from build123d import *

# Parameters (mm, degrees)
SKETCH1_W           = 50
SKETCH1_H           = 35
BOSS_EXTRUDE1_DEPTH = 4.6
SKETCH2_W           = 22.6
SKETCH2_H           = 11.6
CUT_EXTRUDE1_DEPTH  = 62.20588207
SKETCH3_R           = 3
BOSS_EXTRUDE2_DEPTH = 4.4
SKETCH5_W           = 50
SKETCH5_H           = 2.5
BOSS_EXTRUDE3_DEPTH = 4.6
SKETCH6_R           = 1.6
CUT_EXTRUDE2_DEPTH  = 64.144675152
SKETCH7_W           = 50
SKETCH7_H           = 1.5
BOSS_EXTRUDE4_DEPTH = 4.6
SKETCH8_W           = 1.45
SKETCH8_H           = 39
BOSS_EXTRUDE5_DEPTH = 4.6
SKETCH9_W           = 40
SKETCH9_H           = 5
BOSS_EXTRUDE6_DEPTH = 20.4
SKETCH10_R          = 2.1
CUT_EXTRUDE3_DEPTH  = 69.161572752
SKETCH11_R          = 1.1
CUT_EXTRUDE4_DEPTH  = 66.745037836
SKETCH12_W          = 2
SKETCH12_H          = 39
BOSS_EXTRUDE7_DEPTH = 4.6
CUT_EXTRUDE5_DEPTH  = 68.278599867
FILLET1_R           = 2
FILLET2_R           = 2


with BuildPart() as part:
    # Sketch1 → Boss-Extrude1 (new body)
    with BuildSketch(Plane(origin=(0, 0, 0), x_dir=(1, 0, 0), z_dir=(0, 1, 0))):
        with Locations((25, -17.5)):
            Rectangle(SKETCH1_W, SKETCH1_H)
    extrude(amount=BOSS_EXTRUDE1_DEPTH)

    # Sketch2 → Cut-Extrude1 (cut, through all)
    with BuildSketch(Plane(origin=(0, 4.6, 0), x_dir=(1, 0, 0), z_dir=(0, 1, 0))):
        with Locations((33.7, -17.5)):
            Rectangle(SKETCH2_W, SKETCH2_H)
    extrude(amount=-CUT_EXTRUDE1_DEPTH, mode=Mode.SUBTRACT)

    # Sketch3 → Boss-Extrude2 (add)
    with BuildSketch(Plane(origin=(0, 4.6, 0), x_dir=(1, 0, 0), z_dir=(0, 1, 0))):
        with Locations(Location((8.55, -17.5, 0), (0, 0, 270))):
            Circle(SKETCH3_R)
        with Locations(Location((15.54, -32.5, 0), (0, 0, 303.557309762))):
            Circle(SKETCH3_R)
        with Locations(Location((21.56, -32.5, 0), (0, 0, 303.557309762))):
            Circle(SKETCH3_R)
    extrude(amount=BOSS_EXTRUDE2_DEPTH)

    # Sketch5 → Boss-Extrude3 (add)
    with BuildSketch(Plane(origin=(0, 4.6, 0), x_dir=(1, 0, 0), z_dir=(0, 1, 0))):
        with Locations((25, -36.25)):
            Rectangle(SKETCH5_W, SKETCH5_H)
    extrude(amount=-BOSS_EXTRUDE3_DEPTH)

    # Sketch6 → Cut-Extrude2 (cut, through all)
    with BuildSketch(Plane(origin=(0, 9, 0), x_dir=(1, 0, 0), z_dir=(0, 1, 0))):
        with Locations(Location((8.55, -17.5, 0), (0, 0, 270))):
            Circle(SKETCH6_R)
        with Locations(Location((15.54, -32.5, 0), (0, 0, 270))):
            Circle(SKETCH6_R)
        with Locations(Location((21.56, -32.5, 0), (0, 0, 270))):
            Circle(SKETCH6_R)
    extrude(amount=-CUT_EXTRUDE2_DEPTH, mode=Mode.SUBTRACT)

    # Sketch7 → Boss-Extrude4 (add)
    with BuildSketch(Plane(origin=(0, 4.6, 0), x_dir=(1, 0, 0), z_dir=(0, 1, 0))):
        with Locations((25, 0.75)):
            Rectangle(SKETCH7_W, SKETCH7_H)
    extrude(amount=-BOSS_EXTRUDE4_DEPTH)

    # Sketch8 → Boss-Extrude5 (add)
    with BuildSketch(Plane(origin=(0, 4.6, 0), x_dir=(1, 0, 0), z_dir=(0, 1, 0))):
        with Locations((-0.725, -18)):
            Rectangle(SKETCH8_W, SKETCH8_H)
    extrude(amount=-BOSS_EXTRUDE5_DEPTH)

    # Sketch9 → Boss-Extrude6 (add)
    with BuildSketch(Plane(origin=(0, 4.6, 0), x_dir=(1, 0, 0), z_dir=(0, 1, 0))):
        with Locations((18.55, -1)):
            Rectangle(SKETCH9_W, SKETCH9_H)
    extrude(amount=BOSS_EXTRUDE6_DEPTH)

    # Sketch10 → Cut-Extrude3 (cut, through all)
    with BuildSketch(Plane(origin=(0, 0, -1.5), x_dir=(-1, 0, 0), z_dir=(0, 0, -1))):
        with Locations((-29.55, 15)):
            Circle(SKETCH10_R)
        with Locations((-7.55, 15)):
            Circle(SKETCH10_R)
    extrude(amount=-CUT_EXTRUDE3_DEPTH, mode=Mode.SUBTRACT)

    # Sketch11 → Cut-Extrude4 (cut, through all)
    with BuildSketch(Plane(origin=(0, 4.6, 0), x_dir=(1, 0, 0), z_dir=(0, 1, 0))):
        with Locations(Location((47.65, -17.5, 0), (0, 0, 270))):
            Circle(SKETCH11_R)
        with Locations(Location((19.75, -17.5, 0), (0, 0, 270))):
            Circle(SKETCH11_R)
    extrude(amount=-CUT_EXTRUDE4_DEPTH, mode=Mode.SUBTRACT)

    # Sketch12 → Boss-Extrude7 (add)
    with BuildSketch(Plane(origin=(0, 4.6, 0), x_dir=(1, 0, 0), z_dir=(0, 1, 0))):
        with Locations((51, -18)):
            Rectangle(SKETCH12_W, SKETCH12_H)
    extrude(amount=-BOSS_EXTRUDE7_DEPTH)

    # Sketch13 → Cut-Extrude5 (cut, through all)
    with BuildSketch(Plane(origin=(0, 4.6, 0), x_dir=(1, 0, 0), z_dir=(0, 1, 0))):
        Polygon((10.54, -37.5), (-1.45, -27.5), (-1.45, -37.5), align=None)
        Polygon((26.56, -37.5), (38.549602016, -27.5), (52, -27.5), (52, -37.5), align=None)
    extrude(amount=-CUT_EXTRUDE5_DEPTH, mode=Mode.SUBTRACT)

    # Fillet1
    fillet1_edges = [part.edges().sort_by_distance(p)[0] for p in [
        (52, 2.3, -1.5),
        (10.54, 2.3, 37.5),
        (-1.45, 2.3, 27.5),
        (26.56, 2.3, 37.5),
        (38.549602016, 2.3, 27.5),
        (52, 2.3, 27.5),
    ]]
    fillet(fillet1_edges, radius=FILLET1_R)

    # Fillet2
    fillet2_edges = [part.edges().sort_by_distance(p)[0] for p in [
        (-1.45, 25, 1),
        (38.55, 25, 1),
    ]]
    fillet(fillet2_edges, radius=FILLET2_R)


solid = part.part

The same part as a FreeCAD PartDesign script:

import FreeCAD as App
import Part
import Sketcher
Q = App.Units.Quantity


def edges_at(feature, points):
    """Names of the edges that pass closest to the given points."""
    edges = feature.Shape.Edges
    near = lambda p: min(range(len(edges)), key=lambda i: edges[i].distToShape(Part.Vertex(*p))[0])
    return sorted({f"Edge{near(p) + 1}" for p in points})

doc = App.newDocument("Part")
params = doc.addObject("Spreadsheet::Sheet", "Params")
for row, (alias, value) in enumerate([
    ("sketch1_width", "50 mm"),
    ("sketch1_height", "35 mm"),
    ("pad1_length", "4.6 mm"),
    ("sketch2_width", "22.6 mm"),
    ("sketch2_height", "11.6 mm"),
    ("sketch3_diameter", "6 mm"),
    ("pad2_length", "4.4 mm"),
    ("sketch4_width", "50 mm"),
    ("sketch4_height", "2.5 mm"),
    ("pad3_length", "4.6 mm"),
    ("sketch5_diameter", "3.2 mm"),
    ("sketch6_width", "50 mm"),
    ("sketch6_height", "1.5 mm"),
    ("pad4_length", "4.6 mm"),
    ("sketch7_height", "39 mm"),
    ("sketch7_width", "1.45 mm"),
    ("pad5_length", "4.6 mm"),
    ("sketch8_width", "40 mm"),
    ("sketch8_height", "5 mm"),
    ("pad6_length", "20.4 mm"),
    ("sketch9_diameter", "4.2 mm"),
    ("sketch10_diameter", "2.2 mm"),
    ("sketch11_width", "2 mm"),
    ("sketch11_height", "39 mm"),
    ("pad7_length", "4.6 mm"),
    ("sketch12_height", "10 mm"),
    ("sketch12_width", "11.99 mm"),
    ("sketch12_width2", "25.44 mm"),
    ("fillet_radius", "2 mm"),
    ("fillet2_radius", "2 mm"),
], start=1):
    params.set(f"A{row}", alias)
    params.set(f"B{row}", "=" + value)
    params.setAlias(f"B{row}", alias)

body = doc.addObject("PartDesign::Body", "Body")

sketch1 = body.newObject("Sketcher::SketchObject", "Sketch")
sketch1.AttachmentSupport = (doc.getObject("XZ_Plane"), [""])
sketch1.MapMode = "FlatFace"
sketch1.addGeometry([
    Part.LineSegment(App.Vector(0, 0, 0), App.Vector(0, 35, 0)),
    Part.LineSegment(App.Vector(0, 35, 0), App.Vector(50, 35, 0)),
    Part.LineSegment(App.Vector(50, 35, 0), App.Vector(50, 0, 0)),
    Part.LineSegment(App.Vector(50, 0, 0), App.Vector(0, 0, 0)),
], False)
sketch1.addConstraint([
    Sketcher.Constraint("Coincident", 0, 2, 1, 1),
    Sketcher.Constraint("Coincident", 1, 2, 2, 1),
    Sketcher.Constraint("Coincident", 2, 2, 3, 1),
    Sketcher.Constraint("Coincident", 3, 2, 0, 1),
    Sketcher.Constraint("Vertical", 0),
    Sketcher.Constraint("Horizontal", 1),
    Sketcher.Constraint("Vertical", 2),
    Sketcher.Constraint("Horizontal", 3),
    Sketcher.Constraint("Coincident", 3, 2, -1, 1),
    Sketcher.Constraint("DistanceX", 1, 1, 1, 2, 50.0),
    Sketcher.Constraint("DistanceY", 0, 1, 0, 2, 35.0),
])
sketch1.setExpression("Constraints[9]", "Params.sketch1_width")
sketch1.setExpression("Constraints[10]", "Params.sketch1_height")
pad1 = body.newObject("PartDesign::Pad", "Pad")
pad1.Profile = sketch1
pad1.setExpression("Length", "Params.pad1_length")
pad1.Reversed = True

sketch2 = body.newObject("Sketcher::SketchObject", "Sketch001")
sketch2.AttachmentSupport = (doc.getObject("XZ_Plane"), [""])
sketch2.MapMode = "FlatFace"
sketch2.AttachmentOffset = App.Placement(App.Vector(0, 0, -4.6), App.Rotation())
sketch2.addGeometry([
    Part.LineSegment(App.Vector(22, 12, 0), App.Vector(22, 23, 0)),
    Part.LineSegment(App.Vector(22, 23, 0), App.Vector(45, 23, 0)),
    Part.LineSegment(App.Vector(45, 23, 0), App.Vector(45, 12, 0)),
    Part.LineSegment(App.Vector(45, 12, 0), App.Vector(22, 12, 0)),
], False)
sketch2.addConstraint([
    Sketcher.Constraint("Coincident", 0, 2, 1, 1),
    Sketcher.Constraint("Coincident", 1, 2, 2, 1),
    Sketcher.Constraint("Coincident", 2, 2, 3, 1),
    Sketcher.Constraint("Coincident", 3, 2, 0, 1),
    Sketcher.Constraint("Vertical", 0),
    Sketcher.Constraint("Horizontal", 1),
    Sketcher.Constraint("Vertical", 2),
    Sketcher.Constraint("Horizontal", 3),
    Sketcher.Constraint("DistanceX", 1, 1, 1, 2, 22.6),
    Sketcher.Constraint("DistanceY", 0, 1, 0, 2, 11.6),
    Sketcher.Constraint("DistanceX", -1, 1, 1, 2, 45.0),
    Sketcher.Constraint("DistanceY", -1, 1, 0, 2, 23.3),
])
sketch2.setExpression("Constraints[8]", "Params.sketch2_width")
sketch2.setExpression("Constraints[9]", "Params.sketch2_height")
pocket1 = body.newObject("PartDesign::Pocket", "Pocket")
pocket1.Profile = sketch2
pocket1.Type = "ThroughAll"
pocket1.Reversed = True

sketch3 = body.newObject("Sketcher::SketchObject", "Sketch002")
sketch3.AttachmentSupport = (doc.getObject("XZ_Plane"), [""])
sketch3.MapMode = "FlatFace"
sketch3.AttachmentOffset = App.Placement(App.Vector(0, 0, -4.6), App.Rotation())
sketch3.addGeometry([
    Part.Circle(App.Vector(8.6, 17.5, 0), App.Vector(0, 0, 1), 3),
    Part.Circle(App.Vector(15.5, 32.5, 0), App.Vector(0, 0, 1), 3),
    Part.Circle(App.Vector(21.6, 32.5, 0), App.Vector(0, 0, 1), 3),
], False)
sketch3.addConstraint([
    Sketcher.Constraint("Equal", 0, 1),
    Sketcher.Constraint("Equal", 1, 2),
    Sketcher.Constraint("Horizontal", 1, 3, 2, 3),
    Sketcher.Constraint("Diameter", 0, 6.0),
    Sketcher.Constraint("DistanceY", 0, 3, 1, 3, 15.0),
    Sketcher.Constraint("DistanceY", -1, 1, 0, 3, 17.5),
    Sketcher.Constraint("DistanceX", -1, 1, 0, 3, 8.55),
    Sketcher.Constraint("DistanceX", -1, 1, 1, 3, 15.54),
    Sketcher.Constraint("DistanceX", -1, 1, 2, 3, 21.56),
])
sketch3.setExpression("Constraints[3]", "Params.sketch3_diameter")
pad2 = body.newObject("PartDesign::Pad", "Pad001")
pad2.Profile = sketch3
pad2.setExpression("Length", "Params.pad2_length")
pad2.Reversed = True

sketch4 = body.newObject("Sketcher::SketchObject", "Sketch003")
sketch4.AttachmentSupport = (doc.getObject("XZ_Plane"), [""])
sketch4.MapMode = "FlatFace"
sketch4.AttachmentOffset = App.Placement(App.Vector(0, 0, -4.6), App.Rotation())
sketch4.addGeometry([
    Part.LineSegment(App.Vector(0, 35, 0), App.Vector(0, 37.5, 0)),
    Part.LineSegment(App.Vector(0, 37.5, 0), App.Vector(50, 37.5, 0)),
    Part.LineSegment(App.Vector(50, 37.5, 0), App.Vector(50, 35, 0)),
    Part.LineSegment(App.Vector(50, 35, 0), App.Vector(0, 35, 0)),
], False)
sketch4.addConstraint([
    Sketcher.Constraint("Coincident", 0, 2, 1, 1),
    Sketcher.Constraint("Coincident", 1, 2, 2, 1),
    Sketcher.Constraint("Coincident", 2, 2, 3, 1),
    Sketcher.Constraint("Coincident", 3, 2, 0, 1),
    Sketcher.Constraint("Vertical", 0),
    Sketcher.Constraint("Horizontal", 1),
    Sketcher.Constraint("Vertical", 2),
    Sketcher.Constraint("Horizontal", 3),
    Sketcher.Constraint("PointOnObject", 0, 2, -2),
    Sketcher.Constraint("DistanceX", 1, 1, 1, 2, 50.0),
    Sketcher.Constraint("DistanceY", 0, 1, 0, 2, 2.5),
    Sketcher.Constraint("DistanceY", -1, 1, 2, 2, 35.0),
])
sketch4.setExpression("Constraints[9]", "Params.sketch4_width")
sketch4.setExpression("Constraints[10]", "Params.sketch4_height")
pad3 = body.newObject("PartDesign::Pad", "Pad002")
pad3.Profile = sketch4
pad3.setExpression("Length", "Params.pad3_length")

sketch5 = body.newObject("Sketcher::SketchObject", "Sketch004")
sketch5.AttachmentSupport = (doc.getObject("XZ_Plane"), [""])
sketch5.MapMode = "FlatFace"
sketch5.AttachmentOffset = App.Placement(App.Vector(0, 0, -9), App.Rotation())
sketch5.addGeometry([
    Part.Circle(App.Vector(8.6, 17.5, 0), App.Vector(0, 0, 1), 1.6),
    Part.Circle(App.Vector(15.5, 32.5, 0), App.Vector(0, 0, 1), 1.6),
    Part.Circle(App.Vector(21.6, 32.5, 0), App.Vector(0, 0, 1), 1.6),
], False)
sketch5.addConstraint([
    Sketcher.Constraint("Equal", 0, 1),
    Sketcher.Constraint("Equal", 1, 2),
    Sketcher.Constraint("Horizontal", 1, 3, 2, 3),
    Sketcher.Constraint("Diameter", 0, 3.2),
    Sketcher.Constraint("DistanceY", 0, 3, 1, 3, 15.0),
    Sketcher.Constraint("DistanceY", -1, 1, 0, 3, 17.5),
    Sketcher.Constraint("DistanceX", -1, 1, 0, 3, 8.55),
    Sketcher.Constraint("DistanceX", -1, 1, 1, 3, 15.54),
    Sketcher.Constraint("DistanceX", -1, 1, 2, 3, 21.56),
])
sketch5.setExpression("Constraints[3]", "Params.sketch5_diameter")
pocket2 = body.newObject("PartDesign::Pocket", "Pocket001")
pocket2.Profile = sketch5
pocket2.Type = "ThroughAll"
pocket2.Reversed = True

sketch6 = body.newObject("Sketcher::SketchObject", "Sketch005")
sketch6.AttachmentSupport = (doc.getObject("XZ_Plane"), [""])
sketch6.MapMode = "FlatFace"
sketch6.AttachmentOffset = App.Placement(App.Vector(0, 0, -4.6), App.Rotation())
sketch6.addGeometry([
    Part.LineSegment(App.Vector(0, -1.5, 0), App.Vector(0, 0, 0)),
    Part.LineSegment(App.Vector(0, 0, 0), App.Vector(50, 0, 0)),
    Part.LineSegment(App.Vector(50, 0, 0), App.Vector(50, -1.5, 0)),
    Part.LineSegment(App.Vector(50, -1.5, 0), App.Vector(0, -1.5, 0)),
], False)
sketch6.addConstraint([
    Sketcher.Constraint("Coincident", 0, 2, 1, 1),
    Sketcher.Constraint("Coincident", 1, 2, 2, 1),
    Sketcher.Constraint("Coincident", 2, 2, 3, 1),
    Sketcher.Constraint("Coincident", 3, 2, 0, 1),
    Sketcher.Constraint("Vertical", 0),
    Sketcher.Constraint("Horizontal", 1),
    Sketcher.Constraint("Vertical", 2),
    Sketcher.Constraint("Horizontal", 3),
    Sketcher.Constraint("Coincident", 0, 2, -1, 1),
    Sketcher.Constraint("DistanceX", 1, 1, 1, 2, 50.0),
    Sketcher.Constraint("DistanceY", 0, 1, 0, 2, 1.5),
])
sketch6.setExpression("Constraints[9]", "Params.sketch6_width")
sketch6.setExpression("Constraints[10]", "Params.sketch6_height")
pad4 = body.newObject("PartDesign::Pad", "Pad003")
pad4.Profile = sketch6
pad4.setExpression("Length", "Params.pad4_length")

sketch7 = body.newObject("Sketcher::SketchObject", "Sketch006")
sketch7.AttachmentSupport = (doc.getObject("XZ_Plane"), [""])
sketch7.MapMode = "FlatFace"
sketch7.AttachmentOffset = App.Placement(App.Vector(0, 0, -4.6), App.Rotation())
sketch7.addGeometry([
    Part.LineSegment(App.Vector(-1.4, -1.5, 0), App.Vector(-1.4, 37.5, 0)),
    Part.LineSegment(App.Vector(-1.4, 37.5, 0), App.Vector(0, 37.5, 0)),
    Part.LineSegment(App.Vector(0, 37.5, 0), App.Vector(0, -1.5, 0)),
    Part.LineSegment(App.Vector(0, -1.5, 0), App.Vector(-1.4, -1.5, 0)),
], False)
sketch7.addConstraint([
    Sketcher.Constraint("Coincident", 0, 2, 1, 1),
    Sketcher.Constraint("Coincident", 1, 2, 2, 1),
    Sketcher.Constraint("Coincident", 2, 2, 3, 1),
    Sketcher.Constraint("Coincident", 3, 2, 0, 1),
    Sketcher.Constraint("Vertical", 0),
    Sketcher.Constraint("Horizontal", 1),
    Sketcher.Constraint("Vertical", 2),
    Sketcher.Constraint("Horizontal", 3),
    Sketcher.Constraint("PointOnObject", 1, 2, -2),
    Sketcher.Constraint("DistanceY", 0, 1, 0, 2, 39.0),
    Sketcher.Constraint("DistanceX", 1, 1, 1, 2, 1.45),
    Sketcher.Constraint("DistanceY", -1, 1, 0, 2, 37.5),
])
sketch7.setExpression("Constraints[9]", "Params.sketch7_height")
sketch7.setExpression("Constraints[10]", "Params.sketch7_width")
pad5 = body.newObject("PartDesign::Pad", "Pad004")
pad5.Profile = sketch7
pad5.setExpression("Length", "Params.pad5_length")

sketch8 = body.newObject("Sketcher::SketchObject", "Sketch007")
sketch8.AttachmentSupport = (doc.getObject("XZ_Plane"), [""])
sketch8.MapMode = "FlatFace"
sketch8.AttachmentOffset = App.Placement(App.Vector(0, 0, -4.6), App.Rotation())
sketch8.addGeometry([
    Part.LineSegment(App.Vector(-1, -2, 0), App.Vector(-1, 4, 0)),
    Part.LineSegment(App.Vector(-1, 4, 0), App.Vector(39, 4, 0)),
    Part.LineSegment(App.Vector(39, 4, 0), App.Vector(39, -2, 0)),
    Part.LineSegment(App.Vector(39, -2, 0), App.Vector(-1, -2, 0)),
], False)
sketch8.addConstraint([
    Sketcher.Constraint("Coincident", 0, 2, 1, 1),
    Sketcher.Constraint("Coincident", 1, 2, 2, 1),
    Sketcher.Constraint("Coincident", 2, 2, 3, 1),
    Sketcher.Constraint("Coincident", 3, 2, 0, 1),
    Sketcher.Constraint("Vertical", 0),
    Sketcher.Constraint("Horizontal", 1),
    Sketcher.Constraint("Vertical", 2),
    Sketcher.Constraint("Horizontal", 3),
    Sketcher.Constraint("DistanceX", 1, 1, 1, 2, 40.0),
    Sketcher.Constraint("DistanceY", 0, 1, 0, 2, 5.0),
    Sketcher.Constraint("DistanceY", -1, 1, 0, 2, 3.5),
    Sketcher.Constraint("DistanceX", 0, 2, -1, 1, 1.45),
])
sketch8.setExpression("Constraints[8]", "Params.sketch8_width")
sketch8.setExpression("Constraints[9]", "Params.sketch8_height")
pad6 = body.newObject("PartDesign::Pad", "Pad005")
pad6.Profile = sketch8
pad6.setExpression("Length", "Params.pad6_length")
pad6.Reversed = True

sketch9 = body.newObject("Sketcher::SketchObject", "Sketch008")
sketch9.AttachmentSupport = (doc.getObject("XY_Plane"), [""])
sketch9.MapMode = "FlatFace"
sketch9.AttachmentOffset = App.Placement(App.Vector(0, 0, -1.5), App.Rotation())
sketch9.addGeometry([
    Part.Circle(App.Vector(29.6, 15, 0), App.Vector(0, 0, 1), 2.1),
    Part.Circle(App.Vector(7.5, 15, 0), App.Vector(0, 0, 1), 2.1),
], False)
sketch9.addConstraint([
    Sketcher.Constraint("Equal", 0, 1),
    Sketcher.Constraint("Horizontal", 0, 3, 1, 3),
    Sketcher.Constraint("Diameter", 0, 4.2),
    Sketcher.Constraint("DistanceY", -1, 1, 0, 3, 15.0),
    Sketcher.Constraint("DistanceX", 1, 3, 0, 3, 22.0),
    Sketcher.Constraint("DistanceX", -1, 1, 0, 3, 29.55),
])
sketch9.setExpression("Constraints[2]", "Params.sketch9_diameter")
pocket3 = body.newObject("PartDesign::Pocket", "Pocket002")
pocket3.Profile = sketch9
pocket3.Type = "ThroughAll"
pocket3.Reversed = True

sketch10 = body.newObject("Sketcher::SketchObject", "Sketch009")
sketch10.AttachmentSupport = (doc.getObject("XZ_Plane"), [""])
sketch10.MapMode = "FlatFace"
sketch10.AttachmentOffset = App.Placement(App.Vector(0, 0, -4.6), App.Rotation())
sketch10.addGeometry([
    Part.Circle(App.Vector(47.6, 17.5, 0), App.Vector(0, 0, 1), 1.1),
    Part.Circle(App.Vector(19.8, 17.5, 0), App.Vector(0, 0, 1), 1.1),
], False)
sketch10.addConstraint([
    Sketcher.Constraint("Equal", 0, 1),
    Sketcher.Constraint("Horizontal", 0, 3, 1, 3),
    Sketcher.Constraint("Diameter", 0, 2.2),
    Sketcher.Constraint("DistanceY", -1, 1, 0, 3, 17.5),
    Sketcher.Constraint("DistanceX", 1, 3, 0, 3, 27.9),
    Sketcher.Constraint("DistanceX", -1, 1, 0, 3, 47.65),
])
sketch10.setExpression("Constraints[2]", "Params.sketch10_diameter")
pocket4 = body.newObject("PartDesign::Pocket", "Pocket003")
pocket4.Profile = sketch10
pocket4.Type = "ThroughAll"
pocket4.Reversed = True

sketch11 = body.newObject("Sketcher::SketchObject", "Sketch010")
sketch11.AttachmentSupport = (doc.getObject("XZ_Plane"), [""])
sketch11.MapMode = "FlatFace"
sketch11.AttachmentOffset = App.Placement(App.Vector(0, 0, -4.6), App.Rotation())
sketch11.addGeometry([
    Part.LineSegment(App.Vector(50, -1.5, 0), App.Vector(50, 37.5, 0)),
    Part.LineSegment(App.Vector(50, 37.5, 0), App.Vector(52, 37.5, 0)),
    Part.LineSegment(App.Vector(52, 37.5, 0), App.Vector(52, -1.5, 0)),
    Part.LineSegment(App.Vector(52, -1.5, 0), App.Vector(50, -1.5, 0)),
], False)
sketch11.addConstraint([
    Sketcher.Constraint("Coincident", 0, 2, 1, 1),
    Sketcher.Constraint("Coincident", 1, 2, 2, 1),
    Sketcher.Constraint("Coincident", 2, 2, 3, 1),
    Sketcher.Constraint("Coincident", 3, 2, 0, 1),
    Sketcher.Constraint("Vertical", 0),
    Sketcher.Constraint("Horizontal", 1),
    Sketcher.Constraint("Vertical", 2),
    Sketcher.Constraint("Horizontal", 3),
    Sketcher.Constraint("DistanceX", 1, 1, 1, 2, 2.0),
    Sketcher.Constraint("DistanceY", 0, 1, 0, 2, 39.0),
    Sketcher.Constraint("DistanceX", -1, 1, 0, 2, 50.0),
    Sketcher.Constraint("DistanceY", -1, 1, 0, 2, 37.5),
])
sketch11.setExpression("Constraints[8]", "Params.sketch11_width")
sketch11.setExpression("Constraints[9]", "Params.sketch11_height")
pad7 = body.newObject("PartDesign::Pad", "Pad006")
pad7.Profile = sketch11
pad7.setExpression("Length", "Params.pad7_length")

sketch12 = body.newObject("Sketcher::SketchObject", "Sketch011")
sketch12.AttachmentSupport = (doc.getObject("XZ_Plane"), [""])
sketch12.MapMode = "FlatFace"
sketch12.AttachmentOffset = App.Placement(App.Vector(0, 0, -4.6), App.Rotation())
sketch12.addGeometry([
    Part.LineSegment(App.Vector(11, 38, 0), App.Vector(-1, 28, 0)),
    Part.LineSegment(App.Vector(-1, 28, 0), App.Vector(-1, 38, 0)),
    Part.LineSegment(App.Vector(-1, 38, 0), App.Vector(11, 38, 0)),
    Part.LineSegment(App.Vector(39, 28, 0), App.Vector(27, 38, 0)),
    Part.LineSegment(App.Vector(27, 38, 0), App.Vector(52, 38, 0)),
    Part.LineSegment(App.Vector(52, 38, 0), App.Vector(52, 28, 0)),
    Part.LineSegment(App.Vector(52, 28, 0), App.Vector(39, 28, 0)),
], False)
sketch12.addConstraint([
    Sketcher.Constraint("Coincident", 0, 2, 1, 1),
    Sketcher.Constraint("Coincident", 1, 2, 2, 1),
    Sketcher.Constraint("Coincident", 2, 2, 0, 1),
    Sketcher.Constraint("Coincident", 3, 2, 4, 1),
    Sketcher.Constraint("Coincident", 4, 2, 5, 1),
    Sketcher.Constraint("Coincident", 5, 2, 6, 1),
    Sketcher.Constraint("Coincident", 6, 2, 3, 1),
    Sketcher.Constraint("Vertical", 1),
    Sketcher.Constraint("Horizontal", 2),
    Sketcher.Constraint("Horizontal", 4),
    Sketcher.Constraint("Vertical", 5),
    Sketcher.Constraint("Horizontal", 6),
    Sketcher.Constraint("Horizontal", 2, 2, 3, 2),
    Sketcher.Constraint("Horizontal", 0, 2, 5, 2),
    Sketcher.Constraint("DistanceY", 1, 1, 1, 2, 10.0),
    Sketcher.Constraint("DistanceX", -1, 1, 4, 2, 52.0),
    Sketcher.Constraint("DistanceX", 2, 1, 2, 2, 11.99),
    Sketcher.Constraint("DistanceX", 4, 1, 4, 2, 25.44),
    Sketcher.Constraint("DistanceY", -1, 1, 0, 2, 27.5),
    Sketcher.Constraint("Angle", 3, Q("140.17 deg")),
    Sketcher.Constraint("DistanceX", 0, 2, -1, 1, 1.45),
])
sketch12.setExpression("Constraints[14]", "Params.sketch12_height")
sketch12.setExpression("Constraints[16]", "Params.sketch12_width")
sketch12.setExpression("Constraints[17]", "Params.sketch12_width2")
pocket5 = body.newObject("PartDesign::Pocket", "Pocket004")
pocket5.Profile = sketch12
pocket5.Type = "ThroughAll"
pocket5.Reversed = True
doc.recompute()

fillet = body.newObject("PartDesign::Fillet", "Fillet")
fillet.Base = (pocket5, edges_at(pocket5, [
    (52, 2.3, -1.5),
    (10.54, 2.3, 37.5),
    (-1.45, 2.3, 27.5),
    (26.56, 2.3, 37.5),
    (38.55, 2.3, 27.5),
    (52, 2.3, 27.5),
]))
fillet.setExpression("Radius", "Params.fillet_radius")
doc.recompute()

fillet2 = body.newObject("PartDesign::Fillet", "Fillet001")
fillet2.Base = (fillet, edges_at(fillet, [(-1.45, 25, 1), (38.55, 25, 1)]))
fillet2.setExpression("Radius", "Params.fillet2_radius")

doc.recompute()
